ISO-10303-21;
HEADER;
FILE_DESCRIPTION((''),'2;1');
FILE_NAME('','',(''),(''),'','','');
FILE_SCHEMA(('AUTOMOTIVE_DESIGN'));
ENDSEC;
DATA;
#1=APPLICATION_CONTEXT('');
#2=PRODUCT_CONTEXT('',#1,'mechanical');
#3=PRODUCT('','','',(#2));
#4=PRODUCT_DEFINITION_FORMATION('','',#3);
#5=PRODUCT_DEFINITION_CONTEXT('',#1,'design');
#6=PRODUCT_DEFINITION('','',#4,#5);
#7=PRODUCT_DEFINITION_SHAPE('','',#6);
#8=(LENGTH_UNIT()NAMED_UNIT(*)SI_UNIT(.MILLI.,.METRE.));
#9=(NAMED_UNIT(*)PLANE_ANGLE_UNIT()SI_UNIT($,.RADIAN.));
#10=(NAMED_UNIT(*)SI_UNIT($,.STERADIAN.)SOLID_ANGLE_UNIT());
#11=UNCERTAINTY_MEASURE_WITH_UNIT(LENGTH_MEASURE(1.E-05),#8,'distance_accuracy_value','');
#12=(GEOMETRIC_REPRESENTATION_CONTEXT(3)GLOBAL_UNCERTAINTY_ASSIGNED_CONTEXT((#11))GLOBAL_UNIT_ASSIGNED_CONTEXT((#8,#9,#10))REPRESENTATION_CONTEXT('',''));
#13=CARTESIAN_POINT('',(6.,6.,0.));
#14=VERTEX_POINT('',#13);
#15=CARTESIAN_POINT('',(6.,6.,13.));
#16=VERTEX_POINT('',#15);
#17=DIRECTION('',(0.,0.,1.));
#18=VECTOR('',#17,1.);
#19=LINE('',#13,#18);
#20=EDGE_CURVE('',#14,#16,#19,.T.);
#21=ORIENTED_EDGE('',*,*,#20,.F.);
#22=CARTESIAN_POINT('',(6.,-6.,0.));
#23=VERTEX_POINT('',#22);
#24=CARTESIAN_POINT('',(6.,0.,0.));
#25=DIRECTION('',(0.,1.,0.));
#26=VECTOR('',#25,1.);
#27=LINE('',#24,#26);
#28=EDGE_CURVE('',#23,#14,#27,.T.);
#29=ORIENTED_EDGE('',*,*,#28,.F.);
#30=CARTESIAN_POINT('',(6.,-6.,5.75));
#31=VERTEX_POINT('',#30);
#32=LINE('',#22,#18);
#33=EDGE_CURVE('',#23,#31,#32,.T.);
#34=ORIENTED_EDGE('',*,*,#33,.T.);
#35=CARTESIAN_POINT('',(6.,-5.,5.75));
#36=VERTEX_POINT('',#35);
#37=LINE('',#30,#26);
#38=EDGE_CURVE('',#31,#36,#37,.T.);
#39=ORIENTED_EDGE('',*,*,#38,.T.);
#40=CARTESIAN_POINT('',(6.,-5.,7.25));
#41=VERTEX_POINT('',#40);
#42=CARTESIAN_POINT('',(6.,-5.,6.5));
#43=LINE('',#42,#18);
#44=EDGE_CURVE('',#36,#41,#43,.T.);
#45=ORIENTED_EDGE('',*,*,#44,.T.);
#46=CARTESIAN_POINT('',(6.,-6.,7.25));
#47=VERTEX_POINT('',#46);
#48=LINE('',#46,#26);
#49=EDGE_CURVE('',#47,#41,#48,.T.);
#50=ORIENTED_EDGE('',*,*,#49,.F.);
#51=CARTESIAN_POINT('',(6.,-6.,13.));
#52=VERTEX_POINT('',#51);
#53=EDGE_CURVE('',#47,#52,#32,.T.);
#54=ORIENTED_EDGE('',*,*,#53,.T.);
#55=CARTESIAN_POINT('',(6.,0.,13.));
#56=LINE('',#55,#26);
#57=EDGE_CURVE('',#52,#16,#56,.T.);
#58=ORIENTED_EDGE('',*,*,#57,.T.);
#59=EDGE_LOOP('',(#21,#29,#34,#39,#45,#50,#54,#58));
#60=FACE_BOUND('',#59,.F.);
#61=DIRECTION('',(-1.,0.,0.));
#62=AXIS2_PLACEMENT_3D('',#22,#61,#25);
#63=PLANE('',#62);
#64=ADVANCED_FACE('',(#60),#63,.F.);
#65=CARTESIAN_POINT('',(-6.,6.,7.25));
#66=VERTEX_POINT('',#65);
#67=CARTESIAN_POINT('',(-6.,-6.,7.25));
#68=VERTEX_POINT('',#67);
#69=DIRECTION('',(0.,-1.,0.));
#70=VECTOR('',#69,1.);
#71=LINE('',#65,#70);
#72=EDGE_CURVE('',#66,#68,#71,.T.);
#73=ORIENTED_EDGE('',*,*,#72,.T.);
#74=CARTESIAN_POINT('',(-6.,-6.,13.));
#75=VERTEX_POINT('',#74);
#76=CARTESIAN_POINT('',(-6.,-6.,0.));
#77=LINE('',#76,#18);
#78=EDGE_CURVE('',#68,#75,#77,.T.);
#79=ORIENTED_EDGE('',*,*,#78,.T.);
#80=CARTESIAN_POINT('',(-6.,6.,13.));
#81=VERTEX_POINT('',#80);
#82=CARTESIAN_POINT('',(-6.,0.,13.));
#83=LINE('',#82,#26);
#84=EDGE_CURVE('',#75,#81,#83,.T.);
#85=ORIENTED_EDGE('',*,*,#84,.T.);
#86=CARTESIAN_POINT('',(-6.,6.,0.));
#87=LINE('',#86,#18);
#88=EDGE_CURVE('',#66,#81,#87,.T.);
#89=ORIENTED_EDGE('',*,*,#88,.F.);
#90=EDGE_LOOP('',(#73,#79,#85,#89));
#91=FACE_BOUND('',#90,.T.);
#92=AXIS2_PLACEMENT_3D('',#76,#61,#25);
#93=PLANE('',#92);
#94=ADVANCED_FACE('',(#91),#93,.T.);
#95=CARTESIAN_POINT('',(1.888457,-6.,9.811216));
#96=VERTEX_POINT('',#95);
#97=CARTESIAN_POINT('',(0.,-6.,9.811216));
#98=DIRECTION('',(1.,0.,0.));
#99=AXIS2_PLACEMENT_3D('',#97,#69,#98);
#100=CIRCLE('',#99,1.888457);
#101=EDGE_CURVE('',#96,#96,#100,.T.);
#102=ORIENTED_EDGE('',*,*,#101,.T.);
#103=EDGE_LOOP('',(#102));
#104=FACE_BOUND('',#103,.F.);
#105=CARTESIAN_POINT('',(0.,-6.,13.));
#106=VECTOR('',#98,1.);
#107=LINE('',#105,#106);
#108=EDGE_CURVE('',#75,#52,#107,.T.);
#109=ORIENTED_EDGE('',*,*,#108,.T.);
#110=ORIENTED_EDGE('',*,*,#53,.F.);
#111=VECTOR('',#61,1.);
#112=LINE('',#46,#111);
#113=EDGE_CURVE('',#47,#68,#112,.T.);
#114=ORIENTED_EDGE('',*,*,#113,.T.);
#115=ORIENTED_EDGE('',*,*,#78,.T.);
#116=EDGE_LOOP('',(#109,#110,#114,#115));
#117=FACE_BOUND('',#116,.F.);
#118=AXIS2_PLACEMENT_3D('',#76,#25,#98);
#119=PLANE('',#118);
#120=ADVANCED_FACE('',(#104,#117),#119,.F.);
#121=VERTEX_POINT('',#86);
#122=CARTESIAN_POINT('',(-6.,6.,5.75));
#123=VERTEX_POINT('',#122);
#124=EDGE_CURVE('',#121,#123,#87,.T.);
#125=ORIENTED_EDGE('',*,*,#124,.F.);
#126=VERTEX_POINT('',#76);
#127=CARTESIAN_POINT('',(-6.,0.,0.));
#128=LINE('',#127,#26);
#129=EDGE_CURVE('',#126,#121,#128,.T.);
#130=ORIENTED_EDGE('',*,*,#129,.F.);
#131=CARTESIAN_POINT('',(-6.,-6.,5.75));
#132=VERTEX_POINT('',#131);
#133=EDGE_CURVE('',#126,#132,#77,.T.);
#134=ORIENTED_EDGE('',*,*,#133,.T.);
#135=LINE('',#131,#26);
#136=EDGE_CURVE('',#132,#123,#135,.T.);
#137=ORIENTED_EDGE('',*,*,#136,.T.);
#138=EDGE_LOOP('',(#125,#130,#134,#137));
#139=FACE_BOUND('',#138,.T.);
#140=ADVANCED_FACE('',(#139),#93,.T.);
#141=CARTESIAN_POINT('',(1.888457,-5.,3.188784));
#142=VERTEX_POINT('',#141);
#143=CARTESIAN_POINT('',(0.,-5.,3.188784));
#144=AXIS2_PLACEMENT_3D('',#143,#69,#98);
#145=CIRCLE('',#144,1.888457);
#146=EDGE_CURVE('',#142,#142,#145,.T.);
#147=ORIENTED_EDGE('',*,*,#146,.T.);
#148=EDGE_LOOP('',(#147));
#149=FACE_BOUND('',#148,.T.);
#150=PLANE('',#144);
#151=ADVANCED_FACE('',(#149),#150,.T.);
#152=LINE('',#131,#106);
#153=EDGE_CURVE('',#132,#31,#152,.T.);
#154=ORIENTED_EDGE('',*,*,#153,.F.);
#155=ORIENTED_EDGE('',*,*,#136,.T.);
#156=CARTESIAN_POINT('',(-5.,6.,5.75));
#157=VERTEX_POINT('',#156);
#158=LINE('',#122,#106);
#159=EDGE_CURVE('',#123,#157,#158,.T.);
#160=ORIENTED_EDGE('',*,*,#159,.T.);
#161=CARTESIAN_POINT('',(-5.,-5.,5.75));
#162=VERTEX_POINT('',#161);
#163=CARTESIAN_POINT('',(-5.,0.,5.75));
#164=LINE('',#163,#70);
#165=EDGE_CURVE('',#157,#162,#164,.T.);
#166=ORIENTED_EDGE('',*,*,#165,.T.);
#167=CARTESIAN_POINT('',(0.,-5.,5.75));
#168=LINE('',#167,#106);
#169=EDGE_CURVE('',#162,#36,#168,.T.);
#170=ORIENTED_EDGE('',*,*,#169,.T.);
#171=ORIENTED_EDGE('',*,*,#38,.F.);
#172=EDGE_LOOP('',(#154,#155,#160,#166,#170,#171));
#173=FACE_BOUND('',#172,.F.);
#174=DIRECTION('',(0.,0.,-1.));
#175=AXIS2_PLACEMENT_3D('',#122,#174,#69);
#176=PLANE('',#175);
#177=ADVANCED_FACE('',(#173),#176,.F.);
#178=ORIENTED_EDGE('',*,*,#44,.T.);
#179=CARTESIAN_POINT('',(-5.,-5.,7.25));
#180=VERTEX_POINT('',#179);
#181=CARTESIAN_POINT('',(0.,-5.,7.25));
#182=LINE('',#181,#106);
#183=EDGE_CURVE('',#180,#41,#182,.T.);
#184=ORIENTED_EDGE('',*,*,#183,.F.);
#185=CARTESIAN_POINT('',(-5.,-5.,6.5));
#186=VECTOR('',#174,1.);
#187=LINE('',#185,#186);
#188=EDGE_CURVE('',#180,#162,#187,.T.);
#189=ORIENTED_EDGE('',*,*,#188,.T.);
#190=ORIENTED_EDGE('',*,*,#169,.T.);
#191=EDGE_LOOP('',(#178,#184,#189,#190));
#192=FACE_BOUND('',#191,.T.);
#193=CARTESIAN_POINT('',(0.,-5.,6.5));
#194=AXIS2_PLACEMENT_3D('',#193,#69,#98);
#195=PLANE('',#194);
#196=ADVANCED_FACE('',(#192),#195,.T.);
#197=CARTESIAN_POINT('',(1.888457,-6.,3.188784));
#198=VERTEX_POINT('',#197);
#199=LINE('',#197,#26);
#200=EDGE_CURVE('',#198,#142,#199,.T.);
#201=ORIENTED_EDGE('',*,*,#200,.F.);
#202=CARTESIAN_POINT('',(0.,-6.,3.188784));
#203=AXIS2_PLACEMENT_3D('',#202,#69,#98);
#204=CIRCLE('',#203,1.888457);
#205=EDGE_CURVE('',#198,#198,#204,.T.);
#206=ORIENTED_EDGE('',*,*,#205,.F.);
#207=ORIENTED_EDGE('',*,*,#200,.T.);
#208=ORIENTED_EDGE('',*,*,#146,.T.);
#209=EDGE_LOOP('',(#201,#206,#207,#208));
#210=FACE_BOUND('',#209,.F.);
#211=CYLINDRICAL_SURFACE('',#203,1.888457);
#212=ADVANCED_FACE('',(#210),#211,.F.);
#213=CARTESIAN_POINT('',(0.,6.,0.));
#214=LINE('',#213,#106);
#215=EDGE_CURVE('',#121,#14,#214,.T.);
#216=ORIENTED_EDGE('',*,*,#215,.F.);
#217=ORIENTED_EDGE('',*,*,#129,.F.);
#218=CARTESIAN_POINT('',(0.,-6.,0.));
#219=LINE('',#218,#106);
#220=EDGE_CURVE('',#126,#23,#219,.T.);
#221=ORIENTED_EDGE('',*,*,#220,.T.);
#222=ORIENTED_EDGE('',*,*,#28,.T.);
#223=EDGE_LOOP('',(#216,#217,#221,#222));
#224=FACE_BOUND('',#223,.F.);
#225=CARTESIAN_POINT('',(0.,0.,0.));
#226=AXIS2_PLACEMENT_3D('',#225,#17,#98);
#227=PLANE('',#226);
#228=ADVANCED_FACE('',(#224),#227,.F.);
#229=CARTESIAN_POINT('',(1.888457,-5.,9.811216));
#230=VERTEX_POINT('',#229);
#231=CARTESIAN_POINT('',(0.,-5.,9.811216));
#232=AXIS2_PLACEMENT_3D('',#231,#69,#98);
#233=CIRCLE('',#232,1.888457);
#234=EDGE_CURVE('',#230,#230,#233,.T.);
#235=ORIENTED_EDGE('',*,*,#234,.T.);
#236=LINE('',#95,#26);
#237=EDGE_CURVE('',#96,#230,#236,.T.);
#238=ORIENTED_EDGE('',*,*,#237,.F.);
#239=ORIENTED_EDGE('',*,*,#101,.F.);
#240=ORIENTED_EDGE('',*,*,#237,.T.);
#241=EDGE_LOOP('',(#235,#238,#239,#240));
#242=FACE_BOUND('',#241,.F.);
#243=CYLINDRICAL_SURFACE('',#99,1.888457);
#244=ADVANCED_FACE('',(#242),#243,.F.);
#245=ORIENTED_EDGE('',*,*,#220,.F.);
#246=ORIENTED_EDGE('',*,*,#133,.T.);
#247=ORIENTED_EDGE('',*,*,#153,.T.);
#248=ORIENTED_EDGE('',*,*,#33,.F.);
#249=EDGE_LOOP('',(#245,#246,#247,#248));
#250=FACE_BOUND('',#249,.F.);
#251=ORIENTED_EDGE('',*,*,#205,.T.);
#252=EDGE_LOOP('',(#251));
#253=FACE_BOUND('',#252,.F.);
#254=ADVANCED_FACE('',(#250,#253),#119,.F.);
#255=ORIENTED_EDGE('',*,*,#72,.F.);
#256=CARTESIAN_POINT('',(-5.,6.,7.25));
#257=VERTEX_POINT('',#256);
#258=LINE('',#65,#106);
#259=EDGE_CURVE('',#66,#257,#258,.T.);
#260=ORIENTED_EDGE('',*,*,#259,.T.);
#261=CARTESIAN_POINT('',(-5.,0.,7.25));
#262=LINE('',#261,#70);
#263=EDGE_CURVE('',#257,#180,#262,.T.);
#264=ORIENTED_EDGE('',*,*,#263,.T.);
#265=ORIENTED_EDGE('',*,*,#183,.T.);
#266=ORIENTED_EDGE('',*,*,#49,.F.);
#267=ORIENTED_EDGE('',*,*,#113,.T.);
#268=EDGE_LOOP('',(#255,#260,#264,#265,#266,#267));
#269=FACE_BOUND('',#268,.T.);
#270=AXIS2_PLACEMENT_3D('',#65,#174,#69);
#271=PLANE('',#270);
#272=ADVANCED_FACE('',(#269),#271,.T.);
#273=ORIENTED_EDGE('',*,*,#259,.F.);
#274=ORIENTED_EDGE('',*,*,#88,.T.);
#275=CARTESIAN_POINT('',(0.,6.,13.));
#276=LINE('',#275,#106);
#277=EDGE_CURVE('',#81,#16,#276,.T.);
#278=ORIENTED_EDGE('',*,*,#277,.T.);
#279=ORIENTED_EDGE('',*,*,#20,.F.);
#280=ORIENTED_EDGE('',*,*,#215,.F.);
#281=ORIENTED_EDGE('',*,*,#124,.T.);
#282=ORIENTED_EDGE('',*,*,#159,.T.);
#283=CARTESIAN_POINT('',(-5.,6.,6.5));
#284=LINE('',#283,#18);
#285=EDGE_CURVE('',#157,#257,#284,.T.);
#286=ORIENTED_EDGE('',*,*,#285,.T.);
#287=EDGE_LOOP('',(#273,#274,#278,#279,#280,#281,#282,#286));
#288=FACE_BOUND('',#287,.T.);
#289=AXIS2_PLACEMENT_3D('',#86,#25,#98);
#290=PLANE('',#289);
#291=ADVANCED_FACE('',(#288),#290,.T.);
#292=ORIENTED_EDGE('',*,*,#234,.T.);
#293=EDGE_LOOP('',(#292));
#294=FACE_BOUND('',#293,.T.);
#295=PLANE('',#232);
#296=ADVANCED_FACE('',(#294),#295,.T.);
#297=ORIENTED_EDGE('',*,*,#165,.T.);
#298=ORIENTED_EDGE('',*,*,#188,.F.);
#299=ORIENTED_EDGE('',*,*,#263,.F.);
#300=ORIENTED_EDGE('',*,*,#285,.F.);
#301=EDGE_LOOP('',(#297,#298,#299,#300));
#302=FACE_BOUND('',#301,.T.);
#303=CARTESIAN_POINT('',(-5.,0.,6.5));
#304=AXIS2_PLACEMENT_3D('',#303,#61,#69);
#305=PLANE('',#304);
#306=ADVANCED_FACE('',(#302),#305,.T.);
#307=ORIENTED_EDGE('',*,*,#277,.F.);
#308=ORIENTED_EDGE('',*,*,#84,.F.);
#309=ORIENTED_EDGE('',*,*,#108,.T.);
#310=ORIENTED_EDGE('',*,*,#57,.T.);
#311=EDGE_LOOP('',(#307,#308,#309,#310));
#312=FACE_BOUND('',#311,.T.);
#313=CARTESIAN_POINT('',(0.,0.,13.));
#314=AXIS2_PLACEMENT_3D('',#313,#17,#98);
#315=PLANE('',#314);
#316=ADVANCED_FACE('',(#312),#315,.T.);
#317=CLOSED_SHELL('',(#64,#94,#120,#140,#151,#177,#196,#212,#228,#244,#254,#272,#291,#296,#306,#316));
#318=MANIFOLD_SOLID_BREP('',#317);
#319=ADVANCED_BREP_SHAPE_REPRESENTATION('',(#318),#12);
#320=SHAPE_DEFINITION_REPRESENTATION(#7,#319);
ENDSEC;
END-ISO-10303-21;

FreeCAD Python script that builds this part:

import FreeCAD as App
import Part
import Sketcher

V = App.Vector
Q = App.Units.Quantity


def add_polygon(sketch, points):
    """Adds a closed chain of lines whose ends are joined by coincident constraints."""
    first, n = sketch.GeometryCount, len(points)
    for a, b in zip(points, points[1:] + points[:1]):
        sketch.addGeometry(Part.LineSegment(App.Vector(*a, 0), App.Vector(*b, 0)), False)
    for i in range(n):
        sketch.addConstraint(Sketcher.Constraint("Coincident", first + i, 2, first + (i + 1) % n, 1))

doc = App.newDocument("Part")
body = doc.addObject("PartDesign::Body", "Body")

sketch1 = doc.addObject("Sketcher::SketchObject", "Sketch")
body.addObject(sketch1)
sketch1.AttachmentSupport = (doc.XY_Plane, [""])
sketch1.MapMode = "FlatFace"
add_polygon(sketch1, [(-6, 6), (-6, -6), (6, -6), (6, 6)])
sketch1.addConstraint([
    Sketcher.Constraint("Vertical", 0),
    Sketcher.Constraint("Horizontal", 1),
    Sketcher.Constraint("Vertical", 2),
    Sketcher.Constraint("Horizontal", 3),
    Sketcher.Constraint("Symmetric", 0, 2, 2, 2, -1, 1),
    Sketcher.Constraint("Equal", 3, 0),
    Sketcher.Constraint("DistanceX", 1, 1, 1, 2, Q("12 mm")),
])
pad1 = doc.addObject("PartDesign::Pad", "Pad")
body.addObject(pad1)
pad1.Profile = sketch1
pad1.Length = 13

sketch2 = doc.addObject("Sketcher::SketchObject", "Sketch001")
body.addObject(sketch2)
sketch2.AttachmentSupport = (doc.XZ_Plane, [""])
sketch2.MapMode = "FlatFace"
sketch2.AttachmentOffset = App.Placement(V(0, 0, 6), App.Rotation())
add_polygon(sketch2, [(-6, 7.2), (-6, 5.8), (6, 5.8), (6, 7.2)])
sketch2.addGeometry(Part.Circle(V(0, 9.8, 0), V(0, 0, 1), 1.9), False)
sketch2.addGeometry(Part.Circle(V(0, 3.2, 0), V(0, 0, 1), 1.9), False)
sketch2.addConstraint([
    Sketcher.Constraint("Vertical", 0),
    Sketcher.Constraint("Horizontal", 1),
    Sketcher.Constraint("Vertical", 2),
    Sketcher.Constraint("Horizontal", 3),
    Sketcher.Constraint("Equal", 4, 5),
    Sketcher.Constraint("PointOnObject", 4, 3, -2),
    Sketcher.Constraint("PointOnObject", 5, 3, -2),
    Sketcher.Constraint("DistanceX", 1, 1, 1, 2, Q("12 mm")),
    Sketcher.Constraint("DistanceY", 0, 2, 0, 1, Q("1.5 mm")),
    Sketcher.Constraint("DistanceX", 0, 2, -1, 1, Q("6 mm")),
    Sketcher.Constraint("DistanceY", -1, 1, 0, 2, Q("5.75 mm")),
    Sketcher.Constraint("Diameter", 4, Q("3.776914 mm")),
    Sketcher.Constraint("DistanceY", -1, 1, 4, 3, Q("9.811216 mm")),
    Sketcher.Constraint("DistanceY", -1, 1, 5, 3, Q("3.188784 mm")),
])
pocket1 = doc.addObject("PartDesign::Pocket", "Pocket")
body.addObject(pocket1)
pocket1.Profile = sketch2
pocket1.Length = 1

sketch3 = doc.addObject("Sketcher::SketchObject", "Sketch002")
body.addObject(sketch3)
sketch3.AttachmentSupport = (doc.YZ_Plane, [""])
sketch3.MapMode = "FlatFace"
sketch3.AttachmentOffset = App.Placement(V(0, 0, -6), App.Rotation())
add_polygon(sketch3, [(6, 7.2), (6, 5.8), (-6, 5.8), (-6, 7.2)])
sketch3.addConstraint([
    Sketcher.Constraint("Vertical", 0),
    Sketcher.Constraint("Horizontal", 1),
    Sketcher.Constraint("Vertical", 2),
    Sketcher.Constraint("Horizontal", 3),
    Sketcher.Constraint("DistanceX", 1, 2, 1, 1, Q("12 mm")),
    Sketcher.Constraint("DistanceY", 0, 2, 0, 1, Q("1.5 mm")),
    Sketcher.Constraint("DistanceX", -1, 1, 0, 2, Q("6 mm")),
    Sketcher.Constraint("DistanceY", -1, 1, 0, 2, Q("5.75 mm")),
])
pocket2 = doc.addObject("PartDesign::Pocket", "Pocket001")
body.addObject(pocket2)
pocket2.Profile = sketch3
pocket2.Length = 1
pocket2.Reversed = True

doc.recompute()
